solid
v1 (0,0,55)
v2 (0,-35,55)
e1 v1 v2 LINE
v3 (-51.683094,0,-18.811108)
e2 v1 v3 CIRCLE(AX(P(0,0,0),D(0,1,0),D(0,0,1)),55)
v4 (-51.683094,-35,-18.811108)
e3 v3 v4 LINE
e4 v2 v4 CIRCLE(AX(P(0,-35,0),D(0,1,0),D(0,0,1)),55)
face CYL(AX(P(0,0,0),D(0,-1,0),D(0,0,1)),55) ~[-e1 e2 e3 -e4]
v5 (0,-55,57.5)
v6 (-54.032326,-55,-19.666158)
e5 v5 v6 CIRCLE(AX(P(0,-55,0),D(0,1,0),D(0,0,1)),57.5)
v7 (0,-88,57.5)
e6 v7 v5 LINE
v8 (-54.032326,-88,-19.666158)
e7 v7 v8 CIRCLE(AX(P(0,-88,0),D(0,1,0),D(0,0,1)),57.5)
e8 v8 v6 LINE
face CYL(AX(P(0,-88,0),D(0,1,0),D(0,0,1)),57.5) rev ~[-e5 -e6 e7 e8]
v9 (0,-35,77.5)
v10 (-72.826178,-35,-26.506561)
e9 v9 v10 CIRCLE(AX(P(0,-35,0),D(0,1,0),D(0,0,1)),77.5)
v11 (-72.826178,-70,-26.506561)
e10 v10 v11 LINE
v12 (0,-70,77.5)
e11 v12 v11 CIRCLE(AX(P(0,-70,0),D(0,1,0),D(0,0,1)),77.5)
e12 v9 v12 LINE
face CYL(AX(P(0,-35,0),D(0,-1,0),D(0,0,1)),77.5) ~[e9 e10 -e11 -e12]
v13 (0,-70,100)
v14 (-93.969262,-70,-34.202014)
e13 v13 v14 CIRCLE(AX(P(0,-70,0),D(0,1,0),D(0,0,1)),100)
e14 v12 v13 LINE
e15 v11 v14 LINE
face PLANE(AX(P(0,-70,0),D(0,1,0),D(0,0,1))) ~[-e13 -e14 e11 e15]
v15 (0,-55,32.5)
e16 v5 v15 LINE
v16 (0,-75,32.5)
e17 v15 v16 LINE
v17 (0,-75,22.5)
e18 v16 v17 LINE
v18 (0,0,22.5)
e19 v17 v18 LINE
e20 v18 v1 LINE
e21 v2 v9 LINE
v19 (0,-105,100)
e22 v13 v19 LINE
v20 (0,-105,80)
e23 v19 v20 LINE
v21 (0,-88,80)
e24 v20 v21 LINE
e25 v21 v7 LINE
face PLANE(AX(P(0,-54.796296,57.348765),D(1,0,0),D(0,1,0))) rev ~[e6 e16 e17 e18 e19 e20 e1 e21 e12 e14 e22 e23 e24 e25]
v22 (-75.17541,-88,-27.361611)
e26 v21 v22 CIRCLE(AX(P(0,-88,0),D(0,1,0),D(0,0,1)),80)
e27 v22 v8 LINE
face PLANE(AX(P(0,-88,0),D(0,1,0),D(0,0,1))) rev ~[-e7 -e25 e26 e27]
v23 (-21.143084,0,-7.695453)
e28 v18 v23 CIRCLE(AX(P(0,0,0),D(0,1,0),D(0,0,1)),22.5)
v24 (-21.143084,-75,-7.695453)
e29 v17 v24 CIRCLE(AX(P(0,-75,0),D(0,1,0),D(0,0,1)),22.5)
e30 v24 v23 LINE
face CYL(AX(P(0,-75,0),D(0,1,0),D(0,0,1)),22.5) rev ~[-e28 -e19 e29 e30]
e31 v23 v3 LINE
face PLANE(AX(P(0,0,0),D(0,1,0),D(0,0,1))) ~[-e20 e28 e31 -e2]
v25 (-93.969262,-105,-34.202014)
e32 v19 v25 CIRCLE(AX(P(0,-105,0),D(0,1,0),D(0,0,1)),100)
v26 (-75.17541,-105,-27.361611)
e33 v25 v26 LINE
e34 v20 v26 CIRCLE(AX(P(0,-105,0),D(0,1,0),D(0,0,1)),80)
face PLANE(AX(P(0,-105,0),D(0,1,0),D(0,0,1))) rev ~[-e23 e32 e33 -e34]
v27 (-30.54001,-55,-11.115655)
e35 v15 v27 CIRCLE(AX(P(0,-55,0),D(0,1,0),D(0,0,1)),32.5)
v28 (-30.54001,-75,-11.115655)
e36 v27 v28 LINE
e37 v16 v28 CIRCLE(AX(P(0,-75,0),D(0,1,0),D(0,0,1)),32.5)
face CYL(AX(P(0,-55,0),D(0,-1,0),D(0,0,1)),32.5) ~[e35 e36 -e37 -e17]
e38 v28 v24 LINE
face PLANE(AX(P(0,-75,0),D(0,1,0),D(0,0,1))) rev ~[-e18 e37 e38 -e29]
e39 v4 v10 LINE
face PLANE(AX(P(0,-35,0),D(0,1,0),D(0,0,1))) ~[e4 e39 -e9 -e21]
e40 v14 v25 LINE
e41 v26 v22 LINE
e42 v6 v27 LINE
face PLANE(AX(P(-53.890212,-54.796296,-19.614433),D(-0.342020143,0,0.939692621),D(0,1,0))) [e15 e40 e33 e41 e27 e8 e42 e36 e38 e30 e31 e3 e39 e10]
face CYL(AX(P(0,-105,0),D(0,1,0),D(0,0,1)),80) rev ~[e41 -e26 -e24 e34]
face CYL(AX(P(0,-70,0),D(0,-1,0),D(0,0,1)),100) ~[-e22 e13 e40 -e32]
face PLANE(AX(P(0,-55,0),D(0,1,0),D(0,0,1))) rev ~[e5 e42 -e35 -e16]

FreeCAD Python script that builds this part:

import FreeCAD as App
import Part
import Sketcher

V = App.Vector
Q = App.Units.Quantity

doc = App.newDocument("Part")
body = doc.addObject("PartDesign::Body", "Body")

# Sketch on YZ plane
sketch1 = body.newObject("Sketcher::SketchObject", "Sketch")
sketch1.AttachmentSupport = (doc.getObject("YZ_Plane"), [""])
sketch1.MapMode = "FlatFace"
sketch1.addGeometry(Part.LineSegment(V(-75, 22, 0), V(0, 22, 0)), False)
sketch1.addGeometry(Part.LineSegment(V(0, 22, 0), V(0, 55, 0)), False)
sketch1.addGeometry(Part.LineSegment(V(0, 55, 0), V(-35, 55, 0)), False)
sketch1.addGeometry(Part.LineSegment(V(-35, 55, 0), V(-35, 78, 0)), False)
sketch1.addGeometry(Part.LineSegment(V(-35, 78, 0), V(-70, 78, 0)), False)
sketch1.addGeometry(Part.LineSegment(V(-70, 78, 0), V(-70, 100, 0)), False)
sketch1.addGeometry(Part.LineSegment(V(-70, 100, 0), V(-105, 100, 0)), False)
sketch1.addGeometry(Part.LineSegment(V(-105, 100, 0), V(-105, 80, 0)), False)
sketch1.addGeometry(Part.LineSegment(V(-105, 80, 0), V(-88, 80, 0)), False)
sketch1.addGeometry(Part.LineSegment(V(-88, 80, 0), V(-88, 58, 0)), False)
sketch1.addGeometry(Part.LineSegment(V(-88, 58, 0), V(-55, 58, 0)), False)
sketch1.addGeometry(Part.LineSegment(V(-55, 58, 0), V(-55, 32, 0)), False)
sketch1.addGeometry(Part.LineSegment(V(-55, 32, 0), V(-75, 32, 0)), False)
sketch1.addGeometry(Part.LineSegment(V(-75, 32, 0), V(-75, 22, 0)), False)
sketch1.addConstraint(Sketcher.Constraint("Coincident", 0, 2, 1, 1))
sketch1.addConstraint(Sketcher.Constraint("Coincident", 1, 2, 2, 1))
sketch1.addConstraint(Sketcher.Constraint("Coincident", 2, 2, 3, 1))
sketch1.addConstraint(Sketcher.Constraint("Coincident", 3, 2, 4, 1))
sketch1.addConstraint(Sketcher.Constraint("Coincident", 4, 2, 5, 1))
sketch1.addConstraint(Sketcher.Constraint("Coincident", 5, 2, 6, 1))
sketch1.addConstraint(Sketcher.Constraint("Coincident", 6, 2, 7, 1))
sketch1.addConstraint(Sketcher.Constraint("Coincident", 7, 2, 8, 1))
sketch1.addConstraint(Sketcher.Constraint("Coincident", 8, 2, 9, 1))
sketch1.addConstraint(Sketcher.Constraint("Coincident", 9, 2, 10, 1))
sketch1.addConstraint(Sketcher.Constraint("Coincident", 10, 2, 11, 1))
sketch1.addConstraint(Sketcher.Constraint("Coincident", 11, 2, 12, 1))
sketch1.addConstraint(Sketcher.Constraint("Coincident", 12, 2, 13, 1))
sketch1.addConstraint(Sketcher.Constraint("Coincident", 13, 2, 0, 1))
sketch1.addConstraint(Sketcher.Constraint("Horizontal", 0))
sketch1.addConstraint(Sketcher.Constraint("Vertical", 1))
sketch1.addConstraint(Sketcher.Constraint("Horizontal", 2))
sketch1.addConstraint(Sketcher.Constraint("Vertical", 3))
sketch1.addConstraint(Sketcher.Constraint("Horizontal", 4))
sketch1.addConstraint(Sketcher.Constraint("Vertical", 5))
sketch1.addConstraint(Sketcher.Constraint("Horizontal", 6))
sketch1.addConstraint(Sketcher.Constraint("Vertical", 7))
sketch1.addConstraint(Sketcher.Constraint("Horizontal", 8))
sketch1.addConstraint(Sketcher.Constraint("Vertical", 9))
sketch1.addConstraint(Sketcher.Constraint("Horizontal", 10))
sketch1.addConstraint(Sketcher.Constraint("Vertical", 11))
sketch1.addConstraint(Sketcher.Constraint("Horizontal", 12))
sketch1.addConstraint(Sketcher.Constraint("Vertical", 13))
sketch1.addConstraint(Sketcher.Constraint("PointOnObject", 0, 2, -2))
sketch1.addConstraint(Sketcher.Constraint("Equal", 2, 4))
sketch1.addConstraint(Sketcher.Constraint("Equal", 4, 6))
sketch1.addConstraint(Sketcher.Constraint("Equal", 3, 5))
sketch1.addConstraint(Sketcher.Constraint("Equal", 12, 7))
sketch1.addConstraint(Sketcher.Constraint("Equal", 5, 9))
sketch1.addConstraint(Sketcher.Constraint("DistanceX", 0, 1, 0, 2, Q("75 mm")))
sketch1.addConstraint(Sketcher.Constraint("DistanceX", 2, 2, 2, 1, Q("35 mm")))
sketch1.addConstraint(Sketcher.Constraint("DistanceX", 8, 1, 8, 2, Q("17 mm")))
sketch1.addConstraint(Sketcher.Constraint("DistanceX", 10, 1, 10, 2, Q("33 mm")))
sketch1.addConstraint(Sketcher.Constraint("DistanceY", 11, 2, 11, 1, Q("25 mm")))
sketch1.addConstraint(Sketcher.Constraint("DistanceY", 13, 2, 13, 1, Q("10 mm")))
sketch1.addConstraint(Sketcher.Constraint("DistanceY", 1, 1, 1, 2, Q("32.5 mm")))
sketch1.addConstraint(Sketcher.Constraint("DistanceY", -1, 1, 1, 2, Q("55 mm")))
revolution = body.newObject("PartDesign::Revolution", "Revolution")
revolution.Profile = sketch1
revolution.ReferenceAxis = (sketch1, ["H_Axis"])
revolution.Angle = 250

doc.recompute()
